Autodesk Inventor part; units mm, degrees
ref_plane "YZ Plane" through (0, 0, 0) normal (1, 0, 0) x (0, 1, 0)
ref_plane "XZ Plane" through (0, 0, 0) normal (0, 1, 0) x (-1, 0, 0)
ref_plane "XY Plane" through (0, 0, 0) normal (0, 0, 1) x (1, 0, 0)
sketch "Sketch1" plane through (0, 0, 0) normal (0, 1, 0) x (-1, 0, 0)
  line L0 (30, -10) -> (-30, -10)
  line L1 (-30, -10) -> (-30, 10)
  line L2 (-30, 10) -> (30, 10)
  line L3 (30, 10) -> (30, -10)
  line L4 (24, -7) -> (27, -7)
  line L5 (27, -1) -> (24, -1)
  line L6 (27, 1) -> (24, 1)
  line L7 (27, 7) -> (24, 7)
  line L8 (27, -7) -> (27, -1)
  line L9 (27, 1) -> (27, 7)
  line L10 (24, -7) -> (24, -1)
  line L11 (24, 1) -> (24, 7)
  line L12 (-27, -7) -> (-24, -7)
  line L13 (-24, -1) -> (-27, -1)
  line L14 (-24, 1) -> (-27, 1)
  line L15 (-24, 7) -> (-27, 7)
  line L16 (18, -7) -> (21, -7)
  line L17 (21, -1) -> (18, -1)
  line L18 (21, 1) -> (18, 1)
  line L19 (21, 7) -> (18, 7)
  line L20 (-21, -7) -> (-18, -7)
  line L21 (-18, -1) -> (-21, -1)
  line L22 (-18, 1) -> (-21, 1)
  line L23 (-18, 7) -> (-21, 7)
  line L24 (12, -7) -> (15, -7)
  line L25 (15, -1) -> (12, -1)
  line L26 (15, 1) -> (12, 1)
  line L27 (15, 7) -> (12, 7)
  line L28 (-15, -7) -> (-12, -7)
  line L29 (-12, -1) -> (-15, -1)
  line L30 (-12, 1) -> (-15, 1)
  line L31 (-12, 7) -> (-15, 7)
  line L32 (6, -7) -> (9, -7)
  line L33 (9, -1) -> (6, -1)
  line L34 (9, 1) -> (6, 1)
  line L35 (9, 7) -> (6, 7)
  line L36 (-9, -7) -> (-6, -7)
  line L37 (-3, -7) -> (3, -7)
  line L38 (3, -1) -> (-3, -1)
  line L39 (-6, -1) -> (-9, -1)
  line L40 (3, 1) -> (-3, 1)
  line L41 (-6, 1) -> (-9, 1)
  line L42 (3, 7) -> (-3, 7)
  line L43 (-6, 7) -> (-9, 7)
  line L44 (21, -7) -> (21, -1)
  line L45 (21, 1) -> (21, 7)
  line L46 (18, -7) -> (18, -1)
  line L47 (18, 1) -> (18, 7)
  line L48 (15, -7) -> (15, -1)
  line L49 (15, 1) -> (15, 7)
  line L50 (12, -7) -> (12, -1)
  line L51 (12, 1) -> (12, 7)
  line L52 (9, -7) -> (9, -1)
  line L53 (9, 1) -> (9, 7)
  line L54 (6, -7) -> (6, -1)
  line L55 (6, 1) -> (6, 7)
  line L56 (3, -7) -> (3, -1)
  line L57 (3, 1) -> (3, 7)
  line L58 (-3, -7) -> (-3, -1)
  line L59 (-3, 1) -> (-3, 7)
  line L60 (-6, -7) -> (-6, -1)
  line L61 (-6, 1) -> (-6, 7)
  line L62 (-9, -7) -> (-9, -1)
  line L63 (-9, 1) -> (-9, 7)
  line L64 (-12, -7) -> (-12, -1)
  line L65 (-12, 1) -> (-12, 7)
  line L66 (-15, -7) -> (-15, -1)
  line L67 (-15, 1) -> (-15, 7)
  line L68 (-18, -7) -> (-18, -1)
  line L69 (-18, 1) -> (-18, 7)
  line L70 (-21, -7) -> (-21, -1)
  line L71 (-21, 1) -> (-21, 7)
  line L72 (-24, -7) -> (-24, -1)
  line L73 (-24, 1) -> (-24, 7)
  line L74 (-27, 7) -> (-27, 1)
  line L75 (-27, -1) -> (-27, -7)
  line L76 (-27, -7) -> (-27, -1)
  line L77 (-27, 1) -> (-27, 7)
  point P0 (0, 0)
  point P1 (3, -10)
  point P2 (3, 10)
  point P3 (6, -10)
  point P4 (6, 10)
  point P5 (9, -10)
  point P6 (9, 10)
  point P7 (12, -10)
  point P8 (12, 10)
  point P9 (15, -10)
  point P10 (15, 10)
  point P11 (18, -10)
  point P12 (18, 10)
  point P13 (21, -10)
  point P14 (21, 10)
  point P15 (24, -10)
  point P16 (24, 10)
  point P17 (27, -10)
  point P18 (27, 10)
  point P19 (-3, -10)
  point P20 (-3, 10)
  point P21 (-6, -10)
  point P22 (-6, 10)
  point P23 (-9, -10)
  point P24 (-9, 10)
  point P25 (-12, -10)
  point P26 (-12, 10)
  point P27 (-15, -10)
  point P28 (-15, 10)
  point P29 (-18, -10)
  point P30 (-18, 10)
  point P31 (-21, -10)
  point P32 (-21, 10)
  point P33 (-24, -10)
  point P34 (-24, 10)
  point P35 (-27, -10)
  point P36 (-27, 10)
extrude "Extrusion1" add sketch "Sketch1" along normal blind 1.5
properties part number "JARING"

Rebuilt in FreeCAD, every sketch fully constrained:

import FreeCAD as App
import Part
import Sketcher

V = App.Vector

doc = App.newDocument("Part")
body = doc.addObject("PartDesign::Body", "Body")

# Sketch on XZ plane
sketch1 = body.newObject("Sketcher::SketchObject", "Sketch")
sketch1.AttachmentSupport = (doc.getObject("XZ_Plane"), [""])
sketch1.MapMode = "FlatFace"
sketch1.addGeometry([
    Part.LineSegment(V(30, -10, 0), V(-30, -10, 0)),  # 0
    Part.LineSegment(V(-30, -10, 0), V(-30, 10, 0)),  # 1
    Part.LineSegment(V(-30, 10, 0), V(30, 10, 0)),  # 2
    Part.LineSegment(V(30, 10, 0), V(30, -10, 0)),  # 3
    Part.LineSegment(V(24, -7, 0), V(27, -7, 0)),  # 4
    Part.LineSegment(V(27, -7, 0), V(27, -1, 0)),  # 5
    Part.LineSegment(V(27, -1, 0), V(24, -1, 0)),  # 6
    Part.LineSegment(V(24, -1, 0), V(24, -7, 0)),  # 7
    Part.LineSegment(V(18, -7, 0), V(21, -7, 0)),  # 8
    Part.LineSegment(V(21, -7, 0), V(21, -1, 0)),  # 9
    Part.LineSegment(V(21, -1, 0), V(18, -1, 0)),  # 10
    Part.LineSegment(V(18, -1, 0), V(18, -7, 0)),  # 11
    Part.LineSegment(V(12, -7, 0), V(15, -7, 0)),  # 12
    Part.LineSegment(V(15, -7, 0), V(15, -1, 0)),  # 13
    Part.LineSegment(V(15, -1, 0), V(12, -1, 0)),  # 14
    Part.LineSegment(V(12, -1, 0), V(12, -7, 0)),  # 15
    Part.LineSegment(V(6, -7, 0), V(9, -7, 0)),  # 16
    Part.LineSegment(V(9, -7, 0), V(9, -1, 0)),  # 17
    Part.LineSegment(V(9, -1, 0), V(6, -1, 0)),  # 18
    Part.LineSegment(V(6, -1, 0), V(6, -7, 0)),  # 19
    Part.LineSegment(V(-3, -7, 0), V(3, -7, 0)),  # 20
    Part.LineSegment(V(3, -7, 0), V(3, -1, 0)),  # 21
    Part.LineSegment(V(3, -1, 0), V(-3, -1, 0)),  # 22
    Part.LineSegment(V(-3, -1, 0), V(-3, -7, 0)),  # 23
    Part.LineSegment(V(-9, -7, 0), V(-6, -7, 0)),  # 24
    Part.LineSegment(V(-6, -7, 0), V(-6, -1, 0)),  # 25
    Part.LineSegment(V(-6, -1, 0), V(-9, -1, 0)),  # 26
    Part.LineSegment(V(-9, -1, 0), V(-9, -7, 0)),  # 27
    Part.LineSegment(V(-15, -7, 0), V(-12, -7, 0)),  # 28
    Part.LineSegment(V(-12, -7, 0), V(-12, -1, 0)),  # 29
    Part.LineSegment(V(-12, -1, 0), V(-15, -1, 0)),  # 30
    Part.LineSegment(V(-15, -1, 0), V(-15, -7, 0)),  # 31
    Part.LineSegment(V(-21, -7, 0), V(-18, -7, 0)),  # 32
    Part.LineSegment(V(-18, -7, 0), V(-18, -1, 0)),  # 33
    Part.LineSegment(V(-18, -1, 0), V(-21, -1, 0)),  # 34
    Part.LineSegment(V(-21, -1, 0), V(-21, -7, 0)),  # 35
    Part.LineSegment(V(-27, -7, 0), V(-24, -7, 0)),  # 36
    Part.LineSegment(V(-24, -7, 0), V(-24, -1, 0)),  # 37
    Part.LineSegment(V(-24, -1, 0), V(-27, -1, 0)),  # 38
    Part.LineSegment(V(-27, -1, 0), V(-27, -7, 0)),  # 39
    Part.LineSegment(V(24, 7, 0), V(24, 1, 0)),  # 40
    Part.LineSegment(V(24, 1, 0), V(27, 1, 0)),  # 41
    Part.LineSegment(V(27, 1, 0), V(27, 7, 0)),  # 42
    Part.LineSegment(V(27, 7, 0), V(24, 7, 0)),  # 43
    Part.LineSegment(V(18, 7, 0), V(18, 1, 0)),  # 44
    Part.LineSegment(V(18, 1, 0), V(21, 1, 0)),  # 45
    Part.LineSegment(V(21, 1, 0), V(21, 7, 0)),  # 46
    Part.LineSegment(V(21, 7, 0), V(18, 7, 0)),  # 47
    Part.LineSegment(V(12, 7, 0), V(12, 1, 0)),  # 48
    Part.LineSegment(V(12, 1, 0), V(15, 1, 0)),  # 49
    Part.LineSegment(V(15, 1, 0), V(15, 7, 0)),  # 50
    Part.LineSegment(V(15, 7, 0), V(12, 7, 0)),  # 51
    Part.LineSegment(V(6, 7, 0), V(6, 1, 0)),  # 52
    Part.LineSegment(V(6, 1, 0), V(9, 1, 0)),  # 53
    Part.LineSegment(V(9, 1, 0), V(9, 7, 0)),  # 54
    Part.LineSegment(V(9, 7, 0), V(6, 7, 0)),  # 55
    Part.LineSegment(V(-3, 7, 0), V(-3, 1, 0)),  # 56
    Part.LineSegment(V(-3, 1, 0), V(3, 1, 0)),  # 57
    Part.LineSegment(V(3, 1, 0), V(3, 7, 0)),  # 58
    Part.LineSegment(V(3, 7, 0), V(-3, 7, 0)),  # 59
    Part.LineSegment(V(-9, 7, 0), V(-9, 1, 0)),  # 60
    Part.LineSegment(V(-9, 1, 0), V(-6, 1, 0)),  # 61
    Part.LineSegment(V(-6, 1, 0), V(-6, 7, 0)),  # 62
    Part.LineSegment(V(-6, 7, 0), V(-9, 7, 0)),  # 63
    Part.LineSegment(V(-15, 7, 0), V(-15, 1, 0)),  # 64
    Part.LineSegment(V(-15, 1, 0), V(-12, 1, 0)),  # 65
    Part.LineSegment(V(-12, 1, 0), V(-12, 7, 0)),  # 66
    Part.LineSegment(V(-12, 7, 0), V(-15, 7, 0)),  # 67
    Part.LineSegment(V(-21, 7, 0), V(-21, 1, 0)),  # 68
    Part.LineSegment(V(-21, 1, 0), V(-18, 1, 0)),  # 69
    Part.LineSegment(V(-18, 1, 0), V(-18, 7, 0)),  # 70
    Part.LineSegment(V(-18, 7, 0), V(-21, 7, 0)),  # 71
    Part.LineSegment(V(-27, 7, 0), V(-27, 1, 0)),  # 72
    Part.LineSegment(V(-27, 1, 0), V(-24, 1, 0)),  # 73
    Part.LineSegment(V(-24, 1, 0), V(-24, 7, 0)),  # 74
    Part.LineSegment(V(-24, 7, 0), V(-27, 7, 0)),  # 75
], False)
sketch1.addConstraint([
    Sketcher.Constraint("Coincident", 0, 2, 1, 1),
    Sketcher.Constraint("Coincident", 1, 2, 2, 1),
    Sketcher.Constraint("Coincident", 2, 2, 3, 1),
    Sketcher.Constraint("Coincident", 3, 2, 0, 1),
    Sketcher.Constraint("Coincident", 4, 2, 5, 1),
    Sketcher.Constraint("Coincident", 5, 2, 6, 1),
    Sketcher.Constraint("Coincident", 6, 2, 7, 1),
    Sketcher.Constraint("Coincident", 7, 2, 4, 1),
    Sketcher.Constraint("Coincident", 8, 2, 9, 1),
    Sketcher.Constraint("Coincident", 9, 2, 10, 1),
    Sketcher.Constraint("Coincident", 10, 2, 11, 1),
    Sketcher.Constraint("Coincident", 11, 2, 8, 1),
    Sketcher.Constraint("Coincident", 12, 2, 13, 1),
    Sketcher.Constraint("Coincident", 13, 2, 14, 1),
    Sketcher.Constraint("Coincident", 14, 2, 15, 1),
    Sketcher.Constraint("Coincident", 15, 2, 12, 1),
    Sketcher.Constraint("Coincident", 16, 2, 17, 1),
    Sketcher.Constraint("Coincident", 17, 2, 18, 1),
    Sketcher.Constraint("Coincident", 18, 2, 19, 1),
    Sketcher.Constraint("Coincident", 19, 2, 16, 1),
    Sketcher.Constraint("Coincident", 20, 2, 21, 1),
    Sketcher.Constraint("Coincident", 21, 2, 22, 1),
    Sketcher.Constraint("Coincident", 22, 2, 23, 1),
    Sketcher.Constraint("Coincident", 23, 2, 20, 1),
    Sketcher.Constraint("Coincident", 24, 2, 25, 1),
    Sketcher.Constraint("Coincident", 25, 2, 26, 1),
    Sketcher.Constraint("Coincident", 26, 2, 27, 1),
    Sketcher.Constraint("Coincident", 27, 2, 24, 1),
    Sketcher.Constraint("Coincident", 28, 2, 29, 1),
    Sketcher.Constraint("Coincident", 29, 2, 30, 1),
    Sketcher.Constraint("Coincident", 30, 2, 31, 1),
    Sketcher.Constraint("Coincident", 31, 2, 28, 1),
    Sketcher.Constraint("Coincident", 32, 2, 33, 1),
    Sketcher.Constraint("Coincident", 33, 2, 34, 1),
    Sketcher.Constraint("Coincident", 34, 2, 35, 1),
    Sketcher.Constraint("Coincident", 35, 2, 32, 1),
    Sketcher.Constraint("Coincident", 36, 2, 37, 1),
    Sketcher.Constraint("Coincident", 37, 2, 38, 1),
    Sketcher.Constraint("Coincident", 38, 2, 39, 1),
    Sketcher.Constraint("Coincident", 39, 2, 36, 1),
    Sketcher.Constraint("Coincident", 40, 2, 41, 1),
    Sketcher.Constraint("Coincident", 41, 2, 42, 1),
    Sketcher.Constraint("Coincident", 42, 2, 43, 1),
    Sketcher.Constraint("Coincident", 43, 2, 40, 1),
    Sketcher.Constraint("Coincident", 44, 2, 45, 1),
    Sketcher.Constraint("Coincident", 45, 2, 46, 1),
    Sketcher.Constraint("Coincident", 46, 2, 47, 1),
    Sketcher.Constraint("Coincident", 47, 2, 44, 1),
    Sketcher.Constraint("Coincident", 48, 2, 49, 1),
    Sketcher.Constraint("Coincident", 49, 2, 50, 1),
    Sketcher.Constraint("Coincident", 50, 2, 51, 1),
    Sketcher.Constraint("Coincident", 51, 2, 48, 1),
    Sketcher.Constraint("Coincident", 52, 2, 53, 1),
    Sketcher.Constraint("Coincident", 53, 2, 54, 1),
    Sketcher.Constraint("Coincident", 54, 2, 55, 1),
    Sketcher.Constraint("Coincident", 55, 2, 52, 1),
    Sketcher.Constraint("Coincident", 56, 2, 57, 1),
    Sketcher.Constraint("Coincident", 57, 2, 58, 1),
    Sketcher.Constraint("Coincident", 58, 2, 59, 1),
    Sketcher.Constraint("Coincident", 59, 2, 56, 1),
    Sketcher.Constraint("Coincident", 60, 2, 61, 1),
    Sketcher.Constraint("Coincident", 61, 2, 62, 1),
    Sketcher.Constraint("Coincident", 62, 2, 63, 1),
    Sketcher.Constraint("Coincident", 63, 2, 60, 1),
    Sketcher.Constraint("Coincident", 64, 2, 65, 1),
    Sketcher.Constraint("Coincident", 65, 2, 66, 1),
    Sketcher.Constraint("Coincident", 66, 2, 67, 1),
    Sketcher.Constraint("Coincident", 67, 2, 64, 1),
    Sketcher.Constraint("Coincident", 68, 2, 69, 1),
    Sketcher.Constraint("Coincident", 69, 2, 70, 1),
    Sketcher.Constraint("Coincident", 70, 2, 71, 1),
    Sketcher.Constraint("Coincident", 71, 2, 68, 1),
    Sketcher.Constraint("Coincident", 72, 2, 73, 1),
    Sketcher.Constraint("Coincident", 73, 2, 74, 1),
    Sketcher.Constraint("Coincident", 74, 2, 75, 1),
    Sketcher.Constraint("Coincident", 75, 2, 72, 1),
    Sketcher.Constraint("Horizontal", 0),
    Sketcher.Constraint("Vertical", 1),
    Sketcher.Constraint("Horizontal", 2),
    Sketcher.Constraint("Vertical", 3),
    Sketcher.Constraint("Horizontal", 4),
    Sketcher.Constraint("Vertical", 5),
    Sketcher.Constraint("Horizontal", 6),
    Sketcher.Constraint("Vertical", 7),
    Sketcher.Constraint("Horizontal", 8),
    Sketcher.Constraint("Vertical", 9),
    Sketcher.Constraint("Horizontal", 10),
    Sketcher.Constraint("Vertical", 11),
    Sketcher.Constraint("Horizontal", 12),
    Sketcher.Constraint("Vertical", 13),
    Sketcher.Constraint("Horizontal", 14),
    Sketcher.Constraint("Vertical", 15),
    Sketcher.Constraint("Horizontal", 16),
    Sketcher.Constraint("Vertical", 17),
    Sketcher.Constraint("Horizontal", 18),
    Sketcher.Constraint("Vertical", 19),
    Sketcher.Constraint("Horizontal", 20),
    Sketcher.Constraint("Vertical", 21),
    Sketcher.Constraint("Horizontal", 22),
    Sketcher.Constraint("Vertical", 23),
    Sketcher.Constraint("Horizontal", 24),
    Sketcher.Constraint("Vertical", 25),
    Sketcher.Constraint("Horizontal", 26),
    Sketcher.Constraint("Vertical", 27),
    Sketcher.Constraint("Horizontal", 28),
    Sketcher.Constraint("Vertical", 29),
    Sketcher.Constraint("Horizontal", 30),
    Sketcher.Constraint("Vertical", 31),
    Sketcher.Constraint("Horizontal", 32),
    Sketcher.Constraint("Vertical", 33),
    Sketcher.Constraint("Horizontal", 34),
    Sketcher.Constraint("Vertical", 35),
    Sketcher.Constraint("Horizontal", 36),
    Sketcher.Constraint("Vertical", 37),
    Sketcher.Constraint("Horizontal", 38),
    Sketcher.Constraint("Vertical", 39),
    Sketcher.Constraint("Vertical", 40),
    Sketcher.Constraint("Horizontal", 41),
    Sketcher.Constraint("Vertical", 42),
    Sketcher.Constraint("Horizontal", 43),
    Sketcher.Constraint("Vertical", 44),
    Sketcher.Constraint("Horizontal", 45),
    Sketcher.Constraint("Vertical", 46),
    Sketcher.Constraint("Horizontal", 47),
    Sketcher.Constraint("Vertical", 48),
    Sketcher.Constraint("Horizontal", 49),
    Sketcher.Constraint("Vertical", 50),
    Sketcher.Constraint("Horizontal", 51),
    Sketcher.Constraint("Vertical", 52),
    Sketcher.Constraint("Horizontal", 53),
    Sketcher.Constraint("Vertical", 54),
    Sketcher.Constraint("Horizontal", 55),
    Sketcher.Constraint("Vertical", 56),
    Sketcher.Constraint("Horizontal", 57),
    Sketcher.Constraint("Vertical", 58),
    Sketcher.Constraint("Horizontal", 59),
    Sketcher.Constraint("Vertical", 60),
    Sketcher.Constraint("Horizontal", 61),
    Sketcher.Constraint("Vertical", 62),
    Sketcher.Constraint("Horizontal", 63),
    Sketcher.Constraint("Vertical", 64),
    Sketcher.Constraint("Horizontal", 65),
    Sketcher.Constraint("Vertical", 66),
    Sketcher.Constraint("Horizontal", 67),
    Sketcher.Constraint("Vertical", 68),
    Sketcher.Constraint("Horizontal", 69),
    Sketcher.Constraint("Vertical", 70),
    Sketcher.Constraint("Horizontal", 71),
    Sketcher.Constraint("Vertical", 72),
    Sketcher.Constraint("Horizontal", 73),
    Sketcher.Constraint("Vertical", 74),
    Sketcher.Constraint("Horizontal", 75),
    Sketcher.Constraint("Symmetric", 0, 2, 2, 2, -1, 1),
    Sketcher.Constraint("Symmetric", 37, 2, 40, 2, -1, 1),
    Sketcher.Constraint("Symmetric", 39, 2, 42, 2, -1, 1),
    Sketcher.Constraint("Symmetric", 33, 2, 44, 2, -1, 1),
    Sketcher.Constraint("Symmetric", 35, 2, 46, 2, -1, 1),
    Sketcher.Constraint("Symmetric", 29, 2, 48, 2, -1, 1),
    Sketcher.Constraint("Symmetric", 31, 2, 50, 2, -1, 1),
    Sketcher.Constraint("Symmetric", 25, 2, 52, 2, -1, 1),
    Sketcher.Constraint("Symmetric", 27, 2, 54, 2, -1, 1),
    Sketcher.Constraint("Symmetric", 21, 2, 56, 2, -1, 1),
    Sketcher.Constraint("Symmetric", 23, 2, 58, 2, -1, 1),
    Sketcher.Constraint("Symmetric", 17, 2, 60, 2, -1, 1),
    Sketcher.Constraint("Symmetric", 19, 2, 62, 2, -1, 1),
    Sketcher.Constraint("Symmetric", 13, 2, 64, 2, -1, 1),
    Sketcher.Constraint("Symmetric", 15, 2, 66, 2, -1, 1),
    Sketcher.Constraint("Symmetric", 9, 2, 68, 2, -1, 1),
    Sketcher.Constraint("Symmetric", 11, 2, 70, 2, -1, 1),
    Sketcher.Constraint("Symmetric", 5, 2, 72, 2, -1, 1),
    Sketcher.Constraint("Symmetric", 7, 2, 74, 2, -1, 1),
    Sketcher.Constraint("Symmetric", 19, 2, 24, 2, -2),
    Sketcher.Constraint("Symmetric", 17, 2, 26, 2, -2),
    Sketcher.Constraint("Symmetric", 15, 2, 28, 2, -2),
    Sketcher.Constraint("Symmetric", 13, 2, 30, 2, -2),
    Sketcher.Constraint("Symmetric", 11, 2, 32, 2, -2),
    Sketcher.Constraint("Symmetric", 9, 2, 34, 2, -2),
    Sketcher.Constraint("Symmetric", 7, 2, 36, 2, -2),
    Sketcher.Constraint("Symmetric", 5, 2, 38, 2, -2),
    Sketcher.Constraint("Horizontal", 7, 2, 8, 2),
    Sketcher.Constraint("Horizontal", 6, 2, 9, 2),
    Sketcher.Constraint("Horizontal", 11, 2, 12, 2),
    Sketcher.Constraint("Horizontal", 10, 2, 13, 2),
    Sketcher.Constraint("Horizontal", 15, 2, 16, 2),
    Sketcher.Constraint("Horizontal", 14, 2, 17, 2),
    Sketcher.Constraint("Horizontal", 19, 2, 20, 2),
    Sketcher.Constraint("Horizontal", 18, 2, 21, 2),
    Sketcher.Constraint("Vertical", 23, 2, 56, 2),
    Sketcher.Constraint("Equal", 6, 8),
    Sketcher.Constraint("Equal", 10, 12),
    Sketcher.Constraint("Equal", 14, 16),
    Sketcher.Constraint("Equal", 59, 5),
    Sketcher.Constraint("DistanceX", 0, 2, 0, 1, 60.0),
    Sketcher.Constraint("DistanceX", 4, 1, 4, 2, 3.0),
    Sketcher.Constraint("DistanceX", 20, 1, 20, 2, 6.0),
    Sketcher.Constraint("DistanceY", 1, 1, 1, 2, 20.0),
    Sketcher.Constraint("DistanceX", -1, 1, 4, 2, 27.0),
    Sketcher.Constraint("DistanceY", 4, 2, -1, 1, 7.0),
    Sketcher.Constraint("DistanceX", -1, 1, 8, 2, 21.0),
    Sketcher.Constraint("DistanceX", -1, 1, 12, 2, 15.0),
    Sketcher.Constraint("DistanceX", -1, 1, 16, 2, 9.0),
])
pad1 = body.newObject("PartDesign::Pad", "Pad")
pad1.Profile = sketch1
pad1.Length = 1.5
pad1.Reversed = True

doc.recompute()
